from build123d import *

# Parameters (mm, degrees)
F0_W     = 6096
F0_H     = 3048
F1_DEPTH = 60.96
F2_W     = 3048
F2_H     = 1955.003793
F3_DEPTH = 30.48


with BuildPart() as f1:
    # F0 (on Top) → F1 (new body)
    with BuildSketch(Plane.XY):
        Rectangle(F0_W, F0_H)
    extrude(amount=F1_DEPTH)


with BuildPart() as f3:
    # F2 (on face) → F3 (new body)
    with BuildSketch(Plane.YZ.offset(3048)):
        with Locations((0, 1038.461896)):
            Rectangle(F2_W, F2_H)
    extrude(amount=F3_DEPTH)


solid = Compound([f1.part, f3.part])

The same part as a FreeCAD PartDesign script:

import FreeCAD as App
import Part
import Sketcher
Q = App.Units.Quantity

doc = App.newDocument("Part")
body = doc.addObject("PartDesign::Body", "Body")

sketch1 = body.newObject("Sketcher::SketchObject", "Sketch")
sketch1.AttachmentSupport = (doc.getObject("XY_Plane"), [""])
sketch1.MapMode = "FlatFace"
sketch1.addGeometry([
    Part.LineSegment(App.Vector(-3048, 1524, 0), App.Vector(-3048, -1524, 0)),
    Part.LineSegment(App.Vector(-3048, -1524, 0), App.Vector(3048, -1524, 0)),
    Part.LineSegment(App.Vector(3048, -1524, 0), App.Vector(3048, 1524, 0)),
    Part.LineSegment(App.Vector(3048, 1524, 0), App.Vector(-3048, 1524, 0)),
], False)
sketch1.addConstraint([
    Sketcher.Constraint("Coincident", 0, 2, 1, 1),
    Sketcher.Constraint("Coincident", 1, 2, 2, 1),
    Sketcher.Constraint("Coincident", 2, 2, 3, 1),
    Sketcher.Constraint("Coincident", 3, 2, 0, 1),
    Sketcher.Constraint("Vertical", 0),
    Sketcher.Constraint("Horizontal", 1),
    Sketcher.Constraint("Vertical", 2),
    Sketcher.Constraint("Horizontal", 3),
    Sketcher.Constraint("Symmetric", 0, 2, 2, 2, -1, 1),
    Sketcher.Constraint("DistanceX", 1, 1, 1, 2, Q("240 in")),
    Sketcher.Constraint("DistanceY", 0, 2, 0, 1, Q("120 in")),
])
pad1 = body.newObject("PartDesign::Pad", "Pad")
pad1.Profile = sketch1
pad1.Length = Q("2.4 in")
body2 = doc.addObject("PartDesign::Body", "Body001")

sketch2 = body2.newObject("Sketcher::SketchObject", "Sketch001")
sketch2.AttachmentSupport = (doc.getObject("YZ_Plane001"), [""])
sketch2.MapMode = "FlatFace"
sketch2.AttachmentOffset = App.Placement(App.Vector(0, 0, 120 * 25.4), App.Rotation())
sketch2.addGeometry([
    Part.LineSegment(App.Vector(-1524, 2016, 0), App.Vector(-1524, 61, 0)),
    Part.LineSegment(App.Vector(-1524, 61, 0), App.Vector(1524, 61, 0)),
    Part.LineSegment(App.Vector(1524, 61, 0), App.Vector(1524, 2016, 0)),
    Part.LineSegment(App.Vector(1524, 2016, 0), App.Vector(-1524, 2016, 0)),
], False)
sketch2.addConstraint([
    Sketcher.Constraint("Coincident", 0, 2, 1, 1),
    Sketcher.Constraint("Coincident", 1, 2, 2, 1),
    Sketcher.Constraint("Coincident", 2, 2, 3, 1),
    Sketcher.Constraint("Coincident", 3, 2, 0, 1),
    Sketcher.Constraint("Vertical", 0),
    Sketcher.Constraint("Horizontal", 1),
    Sketcher.Constraint("Vertical", 2),
    Sketcher.Constraint("Horizontal", 3),
    Sketcher.Constraint("DistanceX", 1, 1, 1, 2, Q("120 in")),
    Sketcher.Constraint("DistanceX", 0, 2, -1, 1, Q("60 in")),
    Sketcher.Constraint("DistanceY", -1, 1, 0, 2, Q("2.4 in")),
    Sketcher.Constraint("DistanceY", 0, 2, 0, 1, Q("1955.003793 mm")),
])
pad2 = body2.newObject("PartDesign::Pad", "Pad001")
pad2.Profile = sketch2
pad2.Length = Q("1.2 in")

doc.recompute()
